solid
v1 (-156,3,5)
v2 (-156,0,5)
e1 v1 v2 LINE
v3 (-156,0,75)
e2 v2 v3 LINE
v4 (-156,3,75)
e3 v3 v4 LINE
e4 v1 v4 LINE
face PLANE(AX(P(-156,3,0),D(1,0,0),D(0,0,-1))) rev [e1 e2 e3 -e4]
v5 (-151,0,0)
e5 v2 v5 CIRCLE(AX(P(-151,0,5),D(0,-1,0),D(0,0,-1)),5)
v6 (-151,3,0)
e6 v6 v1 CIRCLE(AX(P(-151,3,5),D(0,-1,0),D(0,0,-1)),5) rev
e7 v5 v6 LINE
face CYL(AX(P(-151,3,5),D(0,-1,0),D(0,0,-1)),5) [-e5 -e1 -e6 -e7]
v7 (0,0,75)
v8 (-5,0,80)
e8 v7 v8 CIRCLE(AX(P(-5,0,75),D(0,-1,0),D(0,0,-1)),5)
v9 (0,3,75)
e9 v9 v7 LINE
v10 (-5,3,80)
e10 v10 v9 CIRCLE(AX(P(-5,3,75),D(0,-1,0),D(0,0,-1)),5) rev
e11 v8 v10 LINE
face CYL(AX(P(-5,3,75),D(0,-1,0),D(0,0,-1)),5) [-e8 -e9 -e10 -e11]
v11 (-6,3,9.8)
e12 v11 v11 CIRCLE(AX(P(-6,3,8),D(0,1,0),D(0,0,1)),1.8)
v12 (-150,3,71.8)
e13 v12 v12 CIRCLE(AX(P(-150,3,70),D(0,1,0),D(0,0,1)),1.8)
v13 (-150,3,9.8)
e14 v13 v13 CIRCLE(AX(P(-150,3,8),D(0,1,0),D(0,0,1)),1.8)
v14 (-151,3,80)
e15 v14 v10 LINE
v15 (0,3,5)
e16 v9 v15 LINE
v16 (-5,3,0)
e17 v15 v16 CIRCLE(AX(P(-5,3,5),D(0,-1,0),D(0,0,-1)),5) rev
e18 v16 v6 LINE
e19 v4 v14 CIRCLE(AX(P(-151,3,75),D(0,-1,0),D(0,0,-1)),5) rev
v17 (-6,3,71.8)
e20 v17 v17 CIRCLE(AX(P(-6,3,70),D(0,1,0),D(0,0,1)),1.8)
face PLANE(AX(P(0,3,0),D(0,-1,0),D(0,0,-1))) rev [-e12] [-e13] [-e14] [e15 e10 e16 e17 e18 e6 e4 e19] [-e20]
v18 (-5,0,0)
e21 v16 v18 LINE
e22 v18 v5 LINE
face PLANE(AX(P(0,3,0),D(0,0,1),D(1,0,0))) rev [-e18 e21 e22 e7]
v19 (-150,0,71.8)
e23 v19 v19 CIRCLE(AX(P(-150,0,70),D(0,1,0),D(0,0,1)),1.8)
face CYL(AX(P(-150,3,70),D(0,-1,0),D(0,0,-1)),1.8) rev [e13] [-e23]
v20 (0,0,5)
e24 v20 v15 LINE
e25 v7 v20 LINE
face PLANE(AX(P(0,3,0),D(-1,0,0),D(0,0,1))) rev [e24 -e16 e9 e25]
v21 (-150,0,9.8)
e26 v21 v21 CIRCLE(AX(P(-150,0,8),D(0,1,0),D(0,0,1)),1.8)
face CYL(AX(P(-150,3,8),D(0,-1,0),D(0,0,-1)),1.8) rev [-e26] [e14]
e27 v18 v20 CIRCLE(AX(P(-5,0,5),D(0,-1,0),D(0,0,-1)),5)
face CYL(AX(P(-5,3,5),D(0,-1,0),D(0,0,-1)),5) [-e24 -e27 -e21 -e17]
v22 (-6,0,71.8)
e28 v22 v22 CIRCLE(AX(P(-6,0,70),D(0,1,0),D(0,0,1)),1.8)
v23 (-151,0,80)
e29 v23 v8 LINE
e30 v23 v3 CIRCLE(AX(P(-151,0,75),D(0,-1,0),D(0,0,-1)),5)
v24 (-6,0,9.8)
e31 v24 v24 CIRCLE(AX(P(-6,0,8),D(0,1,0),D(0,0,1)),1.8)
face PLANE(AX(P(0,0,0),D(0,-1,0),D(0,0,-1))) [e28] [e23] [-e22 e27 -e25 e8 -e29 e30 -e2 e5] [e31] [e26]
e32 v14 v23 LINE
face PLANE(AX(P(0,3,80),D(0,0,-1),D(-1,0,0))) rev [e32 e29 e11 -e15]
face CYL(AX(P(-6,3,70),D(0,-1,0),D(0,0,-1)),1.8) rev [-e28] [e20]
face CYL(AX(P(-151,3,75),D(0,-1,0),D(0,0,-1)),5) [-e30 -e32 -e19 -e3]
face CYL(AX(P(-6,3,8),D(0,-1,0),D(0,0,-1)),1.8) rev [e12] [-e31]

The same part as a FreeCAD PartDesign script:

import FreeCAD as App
import Part
import Sketcher


def edges_at(feature, points):
    """Names of the edges that pass closest to the given points."""
    edges = feature.Shape.Edges
    near = lambda p: min(range(len(edges)), key=lambda i: edges[i].distToShape(Part.Vertex(*p))[0])
    return sorted({f"Edge{near(p) + 1}" for p in points})


def add_polygon(sketch, points):
    """Adds a closed chain of lines whose ends are joined by coincident constraints."""
    first, n = sketch.GeometryCount, len(points)
    for a, b in zip(points, points[1:] + points[:1]):
        sketch.addGeometry(Part.LineSegment(App.Vector(*a, 0), App.Vector(*b, 0)), False)
    for i in range(n):
        sketch.addConstraint(Sketcher.Constraint("Coincident", first + i, 2, first + (i + 1) % n, 1))

doc = App.newDocument("Part")
body = doc.addObject("PartDesign::Body", "Body")

# Sketch on XZ plane
sketch1 = body.newObject("Sketcher::SketchObject", "Sketch")
sketch1.AttachmentSupport = (doc.getObject("XZ_Plane"), [""])
sketch1.MapMode = "FlatFace"
add_polygon(sketch1, [(-156, 0), (-156, 80), (0, 80), (0, 0)])  # lines 0-3
sketch1.addGeometry(Part.Circle(App.Vector(-150, 70, 0), App.Vector(0, 0, 1), 1.8), False)  # 4
sketch1.addGeometry(Part.Circle(App.Vector(-6, 70, 0), App.Vector(0, 0, 1), 1.8), False)  # 5
sketch1.addGeometry(Part.Circle(App.Vector(-150, 8, 0), App.Vector(0, 0, 1), 1.8), False)  # 6
sketch1.addGeometry(Part.Circle(App.Vector(-6, 8, 0), App.Vector(0, 0, 1), 1.8), False)  # 7
sketch1.addConstraint([
    Sketcher.Constraint("Vertical", 0),
    Sketcher.Constraint("Horizontal", 1),
    Sketcher.Constraint("Vertical", 2),
    Sketcher.Constraint("Horizontal", 3),
    Sketcher.Constraint("Coincident", 2, 2, -1, 1),
    Sketcher.Constraint("Equal", 4, 5),
    Sketcher.Constraint("Equal", 5, 6),
    Sketcher.Constraint("Equal", 6, 7),
    Sketcher.Constraint("Horizontal", 4, 3, 5, 3),
    Sketcher.Constraint("Horizontal", 6, 3, 7, 3),
    Sketcher.Constraint("Vertical", 4, 3, 6, 3),
    Sketcher.Constraint("Vertical", 5, 3, 7, 3),
    Sketcher.Constraint("Diameter", 4, 3.6),
    Sketcher.Constraint("DistanceX", 1, 1, 1, 2, 156.0),
    Sketcher.Constraint("DistanceY", 0, 1, 0, 2, 80.0),
    Sketcher.Constraint("DistanceX", 4, 3, -1, 1, 150.0),
    Sketcher.Constraint("DistanceY", -1, 1, 4, 3, 70.0),
    Sketcher.Constraint("DistanceX", 5, 3, -1, 1, 6.0),
    Sketcher.Constraint("DistanceY", -1, 1, 6, 3, 8.0),
])
pad1 = body.newObject("PartDesign::Pad", "Pad")
pad1.Profile = sketch1
pad1.Length = 3
pad1.Reversed = True
doc.recompute()

fillet = body.newObject("PartDesign::Fillet", "Fillet")
fillet.Base = (pad1, edges_at(pad1, [
    (0, 1.5, 80),
    (-156, 1.5, 80),
    (-156, 1.5, 0),
    (0, 1.5, 0),
]))
fillet.Radius = 5

doc.recompute()
